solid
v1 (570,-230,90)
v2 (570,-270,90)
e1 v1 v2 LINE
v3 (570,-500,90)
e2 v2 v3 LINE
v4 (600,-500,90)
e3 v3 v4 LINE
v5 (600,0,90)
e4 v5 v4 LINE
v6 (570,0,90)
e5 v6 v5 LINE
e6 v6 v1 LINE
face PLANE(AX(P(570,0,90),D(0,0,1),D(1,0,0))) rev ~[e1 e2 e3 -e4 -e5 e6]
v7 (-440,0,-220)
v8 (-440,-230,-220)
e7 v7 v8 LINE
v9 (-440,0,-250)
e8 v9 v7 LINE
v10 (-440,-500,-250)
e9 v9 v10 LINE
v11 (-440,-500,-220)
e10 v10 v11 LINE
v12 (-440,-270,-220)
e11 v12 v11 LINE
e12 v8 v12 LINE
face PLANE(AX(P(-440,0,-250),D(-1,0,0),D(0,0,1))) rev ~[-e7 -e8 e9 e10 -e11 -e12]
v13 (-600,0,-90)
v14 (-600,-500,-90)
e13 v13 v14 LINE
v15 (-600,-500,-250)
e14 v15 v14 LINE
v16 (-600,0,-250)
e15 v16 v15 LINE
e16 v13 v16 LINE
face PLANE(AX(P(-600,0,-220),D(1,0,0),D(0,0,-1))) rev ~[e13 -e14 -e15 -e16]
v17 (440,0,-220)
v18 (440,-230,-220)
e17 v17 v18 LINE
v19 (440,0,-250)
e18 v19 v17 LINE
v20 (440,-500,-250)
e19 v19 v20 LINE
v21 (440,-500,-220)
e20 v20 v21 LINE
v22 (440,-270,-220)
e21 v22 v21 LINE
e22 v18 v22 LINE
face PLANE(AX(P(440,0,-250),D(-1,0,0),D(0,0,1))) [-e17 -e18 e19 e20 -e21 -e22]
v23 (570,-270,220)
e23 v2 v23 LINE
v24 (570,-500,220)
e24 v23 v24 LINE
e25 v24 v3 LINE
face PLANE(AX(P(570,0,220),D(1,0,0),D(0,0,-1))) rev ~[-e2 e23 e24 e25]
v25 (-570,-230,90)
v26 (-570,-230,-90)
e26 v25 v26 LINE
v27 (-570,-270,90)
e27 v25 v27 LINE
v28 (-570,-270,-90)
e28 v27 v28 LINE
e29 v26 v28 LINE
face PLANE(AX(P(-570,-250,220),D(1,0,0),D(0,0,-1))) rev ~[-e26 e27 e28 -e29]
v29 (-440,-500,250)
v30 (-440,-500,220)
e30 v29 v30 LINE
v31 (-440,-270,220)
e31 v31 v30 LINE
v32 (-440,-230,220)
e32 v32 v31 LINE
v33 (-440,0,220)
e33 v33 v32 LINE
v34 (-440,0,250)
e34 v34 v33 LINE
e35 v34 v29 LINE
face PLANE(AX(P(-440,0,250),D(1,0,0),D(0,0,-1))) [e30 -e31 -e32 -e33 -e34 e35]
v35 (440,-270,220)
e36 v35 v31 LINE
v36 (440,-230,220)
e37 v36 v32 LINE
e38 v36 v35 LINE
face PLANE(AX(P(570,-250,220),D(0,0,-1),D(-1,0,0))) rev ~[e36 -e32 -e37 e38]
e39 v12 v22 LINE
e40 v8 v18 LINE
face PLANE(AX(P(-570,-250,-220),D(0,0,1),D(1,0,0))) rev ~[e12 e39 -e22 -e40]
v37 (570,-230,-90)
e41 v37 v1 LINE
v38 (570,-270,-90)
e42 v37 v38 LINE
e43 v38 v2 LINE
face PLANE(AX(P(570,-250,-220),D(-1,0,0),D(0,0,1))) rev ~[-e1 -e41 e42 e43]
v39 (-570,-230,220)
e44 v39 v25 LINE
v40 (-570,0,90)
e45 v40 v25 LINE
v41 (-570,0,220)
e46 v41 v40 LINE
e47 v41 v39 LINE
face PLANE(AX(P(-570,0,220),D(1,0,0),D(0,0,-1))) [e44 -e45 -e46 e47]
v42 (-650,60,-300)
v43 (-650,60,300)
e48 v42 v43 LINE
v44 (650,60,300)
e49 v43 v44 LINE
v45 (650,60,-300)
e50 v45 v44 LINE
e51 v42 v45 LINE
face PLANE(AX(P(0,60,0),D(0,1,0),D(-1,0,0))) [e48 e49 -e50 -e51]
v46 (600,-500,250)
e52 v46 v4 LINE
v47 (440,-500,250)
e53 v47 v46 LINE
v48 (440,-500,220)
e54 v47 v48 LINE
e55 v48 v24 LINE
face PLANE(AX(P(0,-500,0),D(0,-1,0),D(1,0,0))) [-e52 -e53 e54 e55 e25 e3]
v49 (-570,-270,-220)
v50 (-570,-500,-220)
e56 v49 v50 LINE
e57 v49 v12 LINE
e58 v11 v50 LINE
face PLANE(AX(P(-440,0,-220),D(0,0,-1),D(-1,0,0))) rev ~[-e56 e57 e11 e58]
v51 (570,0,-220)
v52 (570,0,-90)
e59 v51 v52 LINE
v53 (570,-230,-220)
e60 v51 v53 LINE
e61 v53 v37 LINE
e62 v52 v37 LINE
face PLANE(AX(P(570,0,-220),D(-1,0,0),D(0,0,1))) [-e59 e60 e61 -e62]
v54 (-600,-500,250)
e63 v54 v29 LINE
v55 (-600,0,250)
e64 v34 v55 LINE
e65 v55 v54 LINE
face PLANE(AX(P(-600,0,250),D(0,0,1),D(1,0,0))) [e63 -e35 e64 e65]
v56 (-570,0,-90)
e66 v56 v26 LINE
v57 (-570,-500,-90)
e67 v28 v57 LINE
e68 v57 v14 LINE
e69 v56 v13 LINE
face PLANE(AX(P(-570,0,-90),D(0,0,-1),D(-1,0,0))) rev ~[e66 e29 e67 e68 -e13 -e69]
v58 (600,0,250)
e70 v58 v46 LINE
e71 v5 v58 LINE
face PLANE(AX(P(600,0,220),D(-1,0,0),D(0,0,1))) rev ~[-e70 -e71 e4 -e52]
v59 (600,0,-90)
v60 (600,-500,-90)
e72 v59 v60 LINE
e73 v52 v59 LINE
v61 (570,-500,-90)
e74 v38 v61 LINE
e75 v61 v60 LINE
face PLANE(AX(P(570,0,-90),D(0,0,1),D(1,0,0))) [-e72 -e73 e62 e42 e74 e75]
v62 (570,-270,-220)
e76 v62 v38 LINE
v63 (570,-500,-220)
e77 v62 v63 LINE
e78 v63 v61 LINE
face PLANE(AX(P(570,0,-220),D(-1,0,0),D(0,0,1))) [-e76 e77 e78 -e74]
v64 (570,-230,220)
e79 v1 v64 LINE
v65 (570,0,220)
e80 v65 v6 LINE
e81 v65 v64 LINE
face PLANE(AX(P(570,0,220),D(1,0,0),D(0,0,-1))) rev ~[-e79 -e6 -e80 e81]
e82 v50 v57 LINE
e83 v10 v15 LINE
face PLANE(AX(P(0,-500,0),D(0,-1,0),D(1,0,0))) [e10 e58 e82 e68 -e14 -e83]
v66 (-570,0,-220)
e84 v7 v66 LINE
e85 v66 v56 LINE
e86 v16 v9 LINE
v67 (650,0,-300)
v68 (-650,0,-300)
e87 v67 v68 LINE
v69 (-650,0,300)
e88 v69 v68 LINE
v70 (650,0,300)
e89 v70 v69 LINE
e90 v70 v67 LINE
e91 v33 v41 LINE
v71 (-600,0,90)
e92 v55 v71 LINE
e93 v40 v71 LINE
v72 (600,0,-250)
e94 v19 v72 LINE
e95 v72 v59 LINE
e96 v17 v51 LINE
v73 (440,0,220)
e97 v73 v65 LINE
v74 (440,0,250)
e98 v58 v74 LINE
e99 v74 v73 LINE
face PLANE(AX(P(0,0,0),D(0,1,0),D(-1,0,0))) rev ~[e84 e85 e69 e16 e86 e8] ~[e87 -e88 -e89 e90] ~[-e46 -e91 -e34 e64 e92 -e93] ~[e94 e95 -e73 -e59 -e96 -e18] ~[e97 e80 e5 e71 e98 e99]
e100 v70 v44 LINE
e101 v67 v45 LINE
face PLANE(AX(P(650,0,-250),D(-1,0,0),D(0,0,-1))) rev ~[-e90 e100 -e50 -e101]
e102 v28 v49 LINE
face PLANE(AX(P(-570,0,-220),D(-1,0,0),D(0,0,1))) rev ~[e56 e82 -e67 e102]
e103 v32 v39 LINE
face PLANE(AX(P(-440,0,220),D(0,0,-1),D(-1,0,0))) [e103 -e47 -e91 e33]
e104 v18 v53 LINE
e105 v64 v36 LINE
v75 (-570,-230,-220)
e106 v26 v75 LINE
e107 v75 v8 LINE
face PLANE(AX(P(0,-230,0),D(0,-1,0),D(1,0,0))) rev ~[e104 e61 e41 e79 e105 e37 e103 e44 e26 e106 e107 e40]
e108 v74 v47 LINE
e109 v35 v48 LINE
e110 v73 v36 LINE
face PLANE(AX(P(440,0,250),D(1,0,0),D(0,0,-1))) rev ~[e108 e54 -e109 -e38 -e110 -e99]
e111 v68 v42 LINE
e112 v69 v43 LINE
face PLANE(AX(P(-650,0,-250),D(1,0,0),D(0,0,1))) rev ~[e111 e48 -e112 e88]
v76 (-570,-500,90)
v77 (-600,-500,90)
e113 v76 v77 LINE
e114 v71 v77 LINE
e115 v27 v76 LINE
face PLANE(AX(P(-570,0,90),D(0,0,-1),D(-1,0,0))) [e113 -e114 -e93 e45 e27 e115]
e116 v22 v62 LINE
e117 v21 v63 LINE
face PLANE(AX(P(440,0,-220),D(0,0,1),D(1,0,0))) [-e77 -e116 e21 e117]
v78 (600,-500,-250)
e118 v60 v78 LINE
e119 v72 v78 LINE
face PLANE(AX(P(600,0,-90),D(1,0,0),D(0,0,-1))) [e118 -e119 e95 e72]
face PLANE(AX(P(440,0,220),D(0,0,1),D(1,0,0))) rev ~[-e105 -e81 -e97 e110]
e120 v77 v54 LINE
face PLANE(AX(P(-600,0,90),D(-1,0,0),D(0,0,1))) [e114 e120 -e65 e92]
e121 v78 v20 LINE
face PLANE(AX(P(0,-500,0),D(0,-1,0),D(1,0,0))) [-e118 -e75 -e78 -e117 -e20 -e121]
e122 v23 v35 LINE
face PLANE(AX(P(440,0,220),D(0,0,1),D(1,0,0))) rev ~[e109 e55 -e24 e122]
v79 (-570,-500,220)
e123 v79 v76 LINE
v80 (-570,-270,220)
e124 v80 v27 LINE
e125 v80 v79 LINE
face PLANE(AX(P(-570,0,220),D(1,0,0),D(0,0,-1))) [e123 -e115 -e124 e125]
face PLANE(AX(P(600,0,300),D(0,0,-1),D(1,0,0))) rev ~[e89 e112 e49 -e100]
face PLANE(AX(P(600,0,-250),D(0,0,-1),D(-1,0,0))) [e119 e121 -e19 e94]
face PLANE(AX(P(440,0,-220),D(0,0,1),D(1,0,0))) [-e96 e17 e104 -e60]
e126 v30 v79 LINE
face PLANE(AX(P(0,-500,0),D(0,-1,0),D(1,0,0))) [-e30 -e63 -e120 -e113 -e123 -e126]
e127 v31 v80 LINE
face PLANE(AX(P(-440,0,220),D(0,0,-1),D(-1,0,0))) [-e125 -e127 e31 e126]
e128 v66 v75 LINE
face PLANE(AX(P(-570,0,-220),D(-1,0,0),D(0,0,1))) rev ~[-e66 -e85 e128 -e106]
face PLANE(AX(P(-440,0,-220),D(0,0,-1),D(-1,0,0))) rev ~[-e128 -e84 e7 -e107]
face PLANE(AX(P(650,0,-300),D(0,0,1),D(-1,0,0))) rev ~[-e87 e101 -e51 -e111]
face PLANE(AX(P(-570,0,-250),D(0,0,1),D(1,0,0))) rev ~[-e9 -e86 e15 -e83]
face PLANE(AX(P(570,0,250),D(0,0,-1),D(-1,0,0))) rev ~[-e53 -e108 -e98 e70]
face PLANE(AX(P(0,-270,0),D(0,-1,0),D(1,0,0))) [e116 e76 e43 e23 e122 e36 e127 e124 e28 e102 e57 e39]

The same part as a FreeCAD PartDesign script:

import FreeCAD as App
import Part
import Sketcher
from FreeCAD import Vector
Q = App.Units.Quantity


def add_polygon(sketch, points):
    """Adds a closed chain of lines whose ends are joined by coincident constraints."""
    first, n = sketch.GeometryCount, len(points)
    for a, b in zip(points, points[1:] + points[:1]):
        sketch.addGeometry(Part.LineSegment(App.Vector(*a, 0), App.Vector(*b, 0)), False)
    for i in range(n):
        sketch.addConstraint(Sketcher.Constraint("Coincident", first + i, 2, first + (i + 1) % n, 1))

doc = App.newDocument("Part")
body = doc.addObject("PartDesign::Body", "Body")

sketch1 = doc.addObject("Sketcher::SketchObject", "Sketch")
body.addObject(sketch1)
sketch1.AttachmentSupport = (doc.XZ_Plane, [""])
sketch1.MapMode = "FlatFace"
add_polygon(sketch1, [(650, -300), (-650, -300), (-650, 300), (650, 300)])
sketch1.addConstraint([
    Sketcher.Constraint("Horizontal", 0),
    Sketcher.Constraint("Vertical", 1),
    Sketcher.Constraint("Horizontal", 2),
    Sketcher.Constraint("Vertical", 3),
    Sketcher.Constraint("Symmetric", 0, 2, 2, 2, -1, 1),
    Sketcher.Constraint("DistanceX", 0, 2, 0, 1, Q("1300 mm")),
    Sketcher.Constraint("DistanceY", 1, 1, 1, 2, Q("600 mm")),
])
pad1 = doc.addObject("PartDesign::Pad", "Pad")
body.addObject(pad1)
pad1.Profile = sketch1
pad1.Length = 60
pad1.Reversed = True

sketch2 = doc.addObject("Sketcher::SketchObject", "Sketch001")
body.addObject(sketch2)
sketch2.AttachmentSupport = (doc.XZ_Plane, [""])
sketch2.MapMode = "FlatFace"
add_polygon(sketch2, [(-600, -90), (-600, -250), (-440, -250), (-440, -220), (-570, -220), (-570, -90)])
add_polygon(sketch2, [(-440, 250), (-600, 250), (-600, 90), (-570, 90), (-570, 220), (-440, 220)])
add_polygon(sketch2, [(440, -250), (600, -250), (600, -90), (570, -90), (570, -220), (440, -220)])
add_polygon(sketch2, [(600, 90), (600, 250), (440, 250), (440, 220), (570, 220), (570, 90)])
sketch2.addConstraint([
    Sketcher.Constraint("Vertical", 0),
    Sketcher.Constraint("Horizontal", 1),
    Sketcher.Constraint("Vertical", 2),
    Sketcher.Constraint("Horizontal", 3),
    Sketcher.Constraint("Vertical", 4),
    Sketcher.Constraint("Horizontal", 5),
    Sketcher.Constraint("Horizontal", 6),
    Sketcher.Constraint("Vertical", 7),
    Sketcher.Constraint("Horizontal", 8),
    Sketcher.Constraint("Vertical", 9),
    Sketcher.Constraint("Horizontal", 10),
    Sketcher.Constraint("Vertical", 11),
    Sketcher.Constraint("Horizontal", 12),
    Sketcher.Constraint("Vertical", 13),
    Sketcher.Constraint("Horizontal", 14),
    Sketcher.Constraint("Vertical", 15),
    Sketcher.Constraint("Horizontal", 16),
    Sketcher.Constraint("Vertical", 17),
    Sketcher.Constraint("Vertical", 18),
    Sketcher.Constraint("Horizontal", 19),
    Sketcher.Constraint("Vertical", 20),
    Sketcher.Constraint("Horizontal", 21),
    Sketcher.Constraint("Vertical", 22),
    Sketcher.Constraint("Horizontal", 23),
    Sketcher.Constraint("Symmetric", 6, 2, 12, 2, -1, 1),
    Sketcher.Constraint("Symmetric", 8, 2, 14, 2, -1, 1),
    Sketcher.Constraint("Symmetric", 10, 2, 16, 2, -1, 1),
    Sketcher.Constraint("Symmetric", 0, 2, 18, 2, -1, 1),
    Sketcher.Constraint("Symmetric", 2, 2, 20, 2, -1, 1),
    Sketcher.Constraint("Symmetric", 4, 2, 22, 2, -1, 1),
    Sketcher.Constraint("Symmetric", 0, 2, 12, 2, -2),
    Sketcher.Constraint("Symmetric", 4, 2, 14, 2, -2),
    Sketcher.Constraint("Symmetric", 2, 2, 16, 2, -2),
    Sketcher.Constraint("Equal", 19, 0),
    Sketcher.Constraint("Equal", 23, 2),
    Sketcher.Constraint("DistanceX", 1, 1, 1, 2, Q("160 mm")),
    Sketcher.Constraint("DistanceX", 5, 2, 5, 1, Q("30 mm")),
    Sketcher.Constraint("DistanceX", 0, 2, -1, 1, Q("600 mm")),
    Sketcher.Constraint("DistanceY", 0, 2, -1, 1, Q("250 mm")),
])
pad2 = doc.addObject("PartDesign::Pad", "Pad001")
body.addObject(pad2)
pad2.Profile = sketch2
pad2.Length = 500

sketch3 = doc.addObject("Sketcher::SketchObject", "Sketch002")
body.addObject(sketch3)
sketch3.AttachmentSupport = (doc.XZ_Plane, [""])
sketch3.MapMode = "FlatFace"
sketch3.AttachmentOffset = App.Placement(Vector(0, 0, 250), App.Rotation())
add_polygon(sketch3, [(570, -220), (570, 220), (-570, 220), (-570, -220)])
sketch3.addConstraint([
    Sketcher.Constraint("Vertical", 0),
    Sketcher.Constraint("Horizontal", 1),
    Sketcher.Constraint("Vertical", 2),
    Sketcher.Constraint("Horizontal", 3),
    Sketcher.Constraint("Symmetric", 0, 2, 2, 2, -1, 1),
    Sketcher.Constraint("DistanceX", 1, 2, 1, 1, Q("1140 mm")),
    Sketcher.Constraint("DistanceY", 0, 1, 0, 2, Q("440 mm")),
])
pad3 = doc.addObject("PartDesign::Pad", "Pad002")
body.addObject(pad3)
pad3.Profile = sketch3
pad3.Type = "TwoLengths"
pad3.Length = 20
pad3.Length2 = 20

doc.recompute()
